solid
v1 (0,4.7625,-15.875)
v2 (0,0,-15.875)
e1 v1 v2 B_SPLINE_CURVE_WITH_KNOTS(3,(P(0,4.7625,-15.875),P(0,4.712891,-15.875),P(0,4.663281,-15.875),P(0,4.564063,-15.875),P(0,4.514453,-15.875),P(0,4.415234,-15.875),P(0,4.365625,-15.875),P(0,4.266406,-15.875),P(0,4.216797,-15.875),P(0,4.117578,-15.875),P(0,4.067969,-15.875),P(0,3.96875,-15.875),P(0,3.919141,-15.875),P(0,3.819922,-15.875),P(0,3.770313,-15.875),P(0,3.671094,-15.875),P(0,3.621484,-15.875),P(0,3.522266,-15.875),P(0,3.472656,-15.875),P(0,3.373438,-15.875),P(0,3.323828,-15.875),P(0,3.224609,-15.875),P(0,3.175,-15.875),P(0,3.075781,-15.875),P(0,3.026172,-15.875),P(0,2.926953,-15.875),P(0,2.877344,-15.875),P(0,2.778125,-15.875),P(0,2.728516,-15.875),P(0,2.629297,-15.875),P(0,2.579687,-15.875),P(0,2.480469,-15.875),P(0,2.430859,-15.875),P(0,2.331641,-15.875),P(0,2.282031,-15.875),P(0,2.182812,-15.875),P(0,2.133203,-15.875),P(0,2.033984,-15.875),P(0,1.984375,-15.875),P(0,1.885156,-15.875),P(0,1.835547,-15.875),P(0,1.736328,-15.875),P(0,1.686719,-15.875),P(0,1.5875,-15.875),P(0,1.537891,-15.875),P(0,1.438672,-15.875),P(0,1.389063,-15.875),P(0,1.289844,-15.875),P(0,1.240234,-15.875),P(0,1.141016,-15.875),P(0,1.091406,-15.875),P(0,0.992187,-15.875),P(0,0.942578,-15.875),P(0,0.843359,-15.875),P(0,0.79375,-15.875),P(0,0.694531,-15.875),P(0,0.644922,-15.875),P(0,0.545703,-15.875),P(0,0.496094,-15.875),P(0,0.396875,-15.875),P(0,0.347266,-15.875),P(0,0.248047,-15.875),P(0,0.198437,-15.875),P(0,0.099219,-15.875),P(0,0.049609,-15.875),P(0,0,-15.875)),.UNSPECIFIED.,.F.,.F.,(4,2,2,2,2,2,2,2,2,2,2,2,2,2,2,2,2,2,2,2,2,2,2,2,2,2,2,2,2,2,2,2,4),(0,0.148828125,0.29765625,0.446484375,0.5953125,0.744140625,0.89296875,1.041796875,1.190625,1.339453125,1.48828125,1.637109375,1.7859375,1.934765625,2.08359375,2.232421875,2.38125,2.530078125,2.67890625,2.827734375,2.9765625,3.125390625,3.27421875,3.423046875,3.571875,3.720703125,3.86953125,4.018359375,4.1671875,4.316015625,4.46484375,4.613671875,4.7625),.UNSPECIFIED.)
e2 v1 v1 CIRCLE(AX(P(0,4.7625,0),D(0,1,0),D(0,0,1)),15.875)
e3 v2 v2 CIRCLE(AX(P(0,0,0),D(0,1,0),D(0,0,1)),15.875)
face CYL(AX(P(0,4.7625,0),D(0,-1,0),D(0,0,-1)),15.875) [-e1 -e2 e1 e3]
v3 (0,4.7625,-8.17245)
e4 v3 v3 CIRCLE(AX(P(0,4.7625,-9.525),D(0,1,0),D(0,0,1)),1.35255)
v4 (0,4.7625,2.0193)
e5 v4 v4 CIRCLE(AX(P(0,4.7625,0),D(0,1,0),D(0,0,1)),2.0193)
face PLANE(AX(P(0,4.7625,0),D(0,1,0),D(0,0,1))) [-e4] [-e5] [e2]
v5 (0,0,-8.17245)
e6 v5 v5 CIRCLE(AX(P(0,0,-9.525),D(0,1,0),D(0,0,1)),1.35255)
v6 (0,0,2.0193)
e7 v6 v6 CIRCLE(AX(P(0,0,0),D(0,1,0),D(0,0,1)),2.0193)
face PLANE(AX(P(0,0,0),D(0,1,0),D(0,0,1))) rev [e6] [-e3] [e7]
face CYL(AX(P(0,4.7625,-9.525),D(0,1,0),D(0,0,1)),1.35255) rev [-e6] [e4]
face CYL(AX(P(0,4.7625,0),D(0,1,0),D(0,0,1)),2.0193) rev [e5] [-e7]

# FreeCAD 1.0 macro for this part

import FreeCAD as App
import Part
import Sketcher
from FreeCAD import Vector
Q = App.Units.Quantity

doc = App.newDocument("Part")
body = doc.addObject("PartDesign::Body", "Body")

sketch1 = doc.addObject("Sketcher::SketchObject", "Sketch")
body.addObject(sketch1)
sketch1.AttachmentSupport = (doc.XZ_Plane, [""])
sketch1.MapMode = "FlatFace"
sketch1.addGeometry(Part.Circle(Vector(0, 0, 0), Vector(0, 0, 1), 16), False)
sketch1.addConstraint([
    Sketcher.Constraint("Coincident", 0, 3, -1, 1),
    Sketcher.Constraint("Diameter", 0, Q("1.25 in")),
])
pad1 = doc.addObject("PartDesign::Pad", "Pad")
body.addObject(pad1)
pad1.Profile = sketch1
pad1.Length = Q("0.1875 in")
pad1.Reversed = True

sketch2 = doc.addObject("Sketcher::SketchObject", "Sketch001")
body.addObject(sketch2)
sketch2.AttachmentSupport = (doc.XZ_Plane, [""])
sketch2.MapMode = "FlatFace"
sketch2.AttachmentOffset = App.Placement(Vector(0, 0, -0.1875 * 25.4), App.Rotation())
sketch2.addGeometry(Part.Circle(Vector(0, 0, 0), Vector(0, 0, 1), 2), False)
sketch2.addConstraint([
    Sketcher.Constraint("Coincident", 0, 3, -1, 1),
    Sketcher.Constraint("Diameter", 0, Q("0.159 in")),
])
doc.recompute()
hole = doc.addObject("PartDesign::Hole", "Hole")
body.addObject(hole)
hole.Profile = sketch2
hole.ThreadType = "None"
hole.Diameter = Q("0.159 in")
hole.DepthType = "ThroughAll"
hole.Reversed = True

sketch3 = doc.addObject("Sketcher::SketchObject", "Sketch002")
body.addObject(sketch3)
sketch3.AttachmentSupport = (doc.XZ_Plane, [""])
sketch3.MapMode = "FlatFace"
sketch3.AttachmentOffset = App.Placement(Vector(0, 0, -0.1875 * 25.4), App.Rotation())
sketch3.addGeometry(Part.Circle(Vector(0, -9.5, 0), Vector(0, 0, 1), 1.4), False)
sketch3.addConstraint([
    Sketcher.Constraint("PointOnObject", 0, 3, -2),
    Sketcher.Constraint("Diameter", 0, Q("0.1065 in")),
    Sketcher.Constraint("DistanceY", 0, 3, -1, 1, Q("0.375 in")),
])
doc.recompute()
hole2 = doc.addObject("PartDesign::Hole", "Hole001")
body.addObject(hole2)
hole2.Profile = sketch3
hole2.ThreadType = "None"
hole2.Diameter = Q("0.1065 in")
hole2.DepthType = "ThroughAll"
hole2.Reversed = True

doc.recompute()
